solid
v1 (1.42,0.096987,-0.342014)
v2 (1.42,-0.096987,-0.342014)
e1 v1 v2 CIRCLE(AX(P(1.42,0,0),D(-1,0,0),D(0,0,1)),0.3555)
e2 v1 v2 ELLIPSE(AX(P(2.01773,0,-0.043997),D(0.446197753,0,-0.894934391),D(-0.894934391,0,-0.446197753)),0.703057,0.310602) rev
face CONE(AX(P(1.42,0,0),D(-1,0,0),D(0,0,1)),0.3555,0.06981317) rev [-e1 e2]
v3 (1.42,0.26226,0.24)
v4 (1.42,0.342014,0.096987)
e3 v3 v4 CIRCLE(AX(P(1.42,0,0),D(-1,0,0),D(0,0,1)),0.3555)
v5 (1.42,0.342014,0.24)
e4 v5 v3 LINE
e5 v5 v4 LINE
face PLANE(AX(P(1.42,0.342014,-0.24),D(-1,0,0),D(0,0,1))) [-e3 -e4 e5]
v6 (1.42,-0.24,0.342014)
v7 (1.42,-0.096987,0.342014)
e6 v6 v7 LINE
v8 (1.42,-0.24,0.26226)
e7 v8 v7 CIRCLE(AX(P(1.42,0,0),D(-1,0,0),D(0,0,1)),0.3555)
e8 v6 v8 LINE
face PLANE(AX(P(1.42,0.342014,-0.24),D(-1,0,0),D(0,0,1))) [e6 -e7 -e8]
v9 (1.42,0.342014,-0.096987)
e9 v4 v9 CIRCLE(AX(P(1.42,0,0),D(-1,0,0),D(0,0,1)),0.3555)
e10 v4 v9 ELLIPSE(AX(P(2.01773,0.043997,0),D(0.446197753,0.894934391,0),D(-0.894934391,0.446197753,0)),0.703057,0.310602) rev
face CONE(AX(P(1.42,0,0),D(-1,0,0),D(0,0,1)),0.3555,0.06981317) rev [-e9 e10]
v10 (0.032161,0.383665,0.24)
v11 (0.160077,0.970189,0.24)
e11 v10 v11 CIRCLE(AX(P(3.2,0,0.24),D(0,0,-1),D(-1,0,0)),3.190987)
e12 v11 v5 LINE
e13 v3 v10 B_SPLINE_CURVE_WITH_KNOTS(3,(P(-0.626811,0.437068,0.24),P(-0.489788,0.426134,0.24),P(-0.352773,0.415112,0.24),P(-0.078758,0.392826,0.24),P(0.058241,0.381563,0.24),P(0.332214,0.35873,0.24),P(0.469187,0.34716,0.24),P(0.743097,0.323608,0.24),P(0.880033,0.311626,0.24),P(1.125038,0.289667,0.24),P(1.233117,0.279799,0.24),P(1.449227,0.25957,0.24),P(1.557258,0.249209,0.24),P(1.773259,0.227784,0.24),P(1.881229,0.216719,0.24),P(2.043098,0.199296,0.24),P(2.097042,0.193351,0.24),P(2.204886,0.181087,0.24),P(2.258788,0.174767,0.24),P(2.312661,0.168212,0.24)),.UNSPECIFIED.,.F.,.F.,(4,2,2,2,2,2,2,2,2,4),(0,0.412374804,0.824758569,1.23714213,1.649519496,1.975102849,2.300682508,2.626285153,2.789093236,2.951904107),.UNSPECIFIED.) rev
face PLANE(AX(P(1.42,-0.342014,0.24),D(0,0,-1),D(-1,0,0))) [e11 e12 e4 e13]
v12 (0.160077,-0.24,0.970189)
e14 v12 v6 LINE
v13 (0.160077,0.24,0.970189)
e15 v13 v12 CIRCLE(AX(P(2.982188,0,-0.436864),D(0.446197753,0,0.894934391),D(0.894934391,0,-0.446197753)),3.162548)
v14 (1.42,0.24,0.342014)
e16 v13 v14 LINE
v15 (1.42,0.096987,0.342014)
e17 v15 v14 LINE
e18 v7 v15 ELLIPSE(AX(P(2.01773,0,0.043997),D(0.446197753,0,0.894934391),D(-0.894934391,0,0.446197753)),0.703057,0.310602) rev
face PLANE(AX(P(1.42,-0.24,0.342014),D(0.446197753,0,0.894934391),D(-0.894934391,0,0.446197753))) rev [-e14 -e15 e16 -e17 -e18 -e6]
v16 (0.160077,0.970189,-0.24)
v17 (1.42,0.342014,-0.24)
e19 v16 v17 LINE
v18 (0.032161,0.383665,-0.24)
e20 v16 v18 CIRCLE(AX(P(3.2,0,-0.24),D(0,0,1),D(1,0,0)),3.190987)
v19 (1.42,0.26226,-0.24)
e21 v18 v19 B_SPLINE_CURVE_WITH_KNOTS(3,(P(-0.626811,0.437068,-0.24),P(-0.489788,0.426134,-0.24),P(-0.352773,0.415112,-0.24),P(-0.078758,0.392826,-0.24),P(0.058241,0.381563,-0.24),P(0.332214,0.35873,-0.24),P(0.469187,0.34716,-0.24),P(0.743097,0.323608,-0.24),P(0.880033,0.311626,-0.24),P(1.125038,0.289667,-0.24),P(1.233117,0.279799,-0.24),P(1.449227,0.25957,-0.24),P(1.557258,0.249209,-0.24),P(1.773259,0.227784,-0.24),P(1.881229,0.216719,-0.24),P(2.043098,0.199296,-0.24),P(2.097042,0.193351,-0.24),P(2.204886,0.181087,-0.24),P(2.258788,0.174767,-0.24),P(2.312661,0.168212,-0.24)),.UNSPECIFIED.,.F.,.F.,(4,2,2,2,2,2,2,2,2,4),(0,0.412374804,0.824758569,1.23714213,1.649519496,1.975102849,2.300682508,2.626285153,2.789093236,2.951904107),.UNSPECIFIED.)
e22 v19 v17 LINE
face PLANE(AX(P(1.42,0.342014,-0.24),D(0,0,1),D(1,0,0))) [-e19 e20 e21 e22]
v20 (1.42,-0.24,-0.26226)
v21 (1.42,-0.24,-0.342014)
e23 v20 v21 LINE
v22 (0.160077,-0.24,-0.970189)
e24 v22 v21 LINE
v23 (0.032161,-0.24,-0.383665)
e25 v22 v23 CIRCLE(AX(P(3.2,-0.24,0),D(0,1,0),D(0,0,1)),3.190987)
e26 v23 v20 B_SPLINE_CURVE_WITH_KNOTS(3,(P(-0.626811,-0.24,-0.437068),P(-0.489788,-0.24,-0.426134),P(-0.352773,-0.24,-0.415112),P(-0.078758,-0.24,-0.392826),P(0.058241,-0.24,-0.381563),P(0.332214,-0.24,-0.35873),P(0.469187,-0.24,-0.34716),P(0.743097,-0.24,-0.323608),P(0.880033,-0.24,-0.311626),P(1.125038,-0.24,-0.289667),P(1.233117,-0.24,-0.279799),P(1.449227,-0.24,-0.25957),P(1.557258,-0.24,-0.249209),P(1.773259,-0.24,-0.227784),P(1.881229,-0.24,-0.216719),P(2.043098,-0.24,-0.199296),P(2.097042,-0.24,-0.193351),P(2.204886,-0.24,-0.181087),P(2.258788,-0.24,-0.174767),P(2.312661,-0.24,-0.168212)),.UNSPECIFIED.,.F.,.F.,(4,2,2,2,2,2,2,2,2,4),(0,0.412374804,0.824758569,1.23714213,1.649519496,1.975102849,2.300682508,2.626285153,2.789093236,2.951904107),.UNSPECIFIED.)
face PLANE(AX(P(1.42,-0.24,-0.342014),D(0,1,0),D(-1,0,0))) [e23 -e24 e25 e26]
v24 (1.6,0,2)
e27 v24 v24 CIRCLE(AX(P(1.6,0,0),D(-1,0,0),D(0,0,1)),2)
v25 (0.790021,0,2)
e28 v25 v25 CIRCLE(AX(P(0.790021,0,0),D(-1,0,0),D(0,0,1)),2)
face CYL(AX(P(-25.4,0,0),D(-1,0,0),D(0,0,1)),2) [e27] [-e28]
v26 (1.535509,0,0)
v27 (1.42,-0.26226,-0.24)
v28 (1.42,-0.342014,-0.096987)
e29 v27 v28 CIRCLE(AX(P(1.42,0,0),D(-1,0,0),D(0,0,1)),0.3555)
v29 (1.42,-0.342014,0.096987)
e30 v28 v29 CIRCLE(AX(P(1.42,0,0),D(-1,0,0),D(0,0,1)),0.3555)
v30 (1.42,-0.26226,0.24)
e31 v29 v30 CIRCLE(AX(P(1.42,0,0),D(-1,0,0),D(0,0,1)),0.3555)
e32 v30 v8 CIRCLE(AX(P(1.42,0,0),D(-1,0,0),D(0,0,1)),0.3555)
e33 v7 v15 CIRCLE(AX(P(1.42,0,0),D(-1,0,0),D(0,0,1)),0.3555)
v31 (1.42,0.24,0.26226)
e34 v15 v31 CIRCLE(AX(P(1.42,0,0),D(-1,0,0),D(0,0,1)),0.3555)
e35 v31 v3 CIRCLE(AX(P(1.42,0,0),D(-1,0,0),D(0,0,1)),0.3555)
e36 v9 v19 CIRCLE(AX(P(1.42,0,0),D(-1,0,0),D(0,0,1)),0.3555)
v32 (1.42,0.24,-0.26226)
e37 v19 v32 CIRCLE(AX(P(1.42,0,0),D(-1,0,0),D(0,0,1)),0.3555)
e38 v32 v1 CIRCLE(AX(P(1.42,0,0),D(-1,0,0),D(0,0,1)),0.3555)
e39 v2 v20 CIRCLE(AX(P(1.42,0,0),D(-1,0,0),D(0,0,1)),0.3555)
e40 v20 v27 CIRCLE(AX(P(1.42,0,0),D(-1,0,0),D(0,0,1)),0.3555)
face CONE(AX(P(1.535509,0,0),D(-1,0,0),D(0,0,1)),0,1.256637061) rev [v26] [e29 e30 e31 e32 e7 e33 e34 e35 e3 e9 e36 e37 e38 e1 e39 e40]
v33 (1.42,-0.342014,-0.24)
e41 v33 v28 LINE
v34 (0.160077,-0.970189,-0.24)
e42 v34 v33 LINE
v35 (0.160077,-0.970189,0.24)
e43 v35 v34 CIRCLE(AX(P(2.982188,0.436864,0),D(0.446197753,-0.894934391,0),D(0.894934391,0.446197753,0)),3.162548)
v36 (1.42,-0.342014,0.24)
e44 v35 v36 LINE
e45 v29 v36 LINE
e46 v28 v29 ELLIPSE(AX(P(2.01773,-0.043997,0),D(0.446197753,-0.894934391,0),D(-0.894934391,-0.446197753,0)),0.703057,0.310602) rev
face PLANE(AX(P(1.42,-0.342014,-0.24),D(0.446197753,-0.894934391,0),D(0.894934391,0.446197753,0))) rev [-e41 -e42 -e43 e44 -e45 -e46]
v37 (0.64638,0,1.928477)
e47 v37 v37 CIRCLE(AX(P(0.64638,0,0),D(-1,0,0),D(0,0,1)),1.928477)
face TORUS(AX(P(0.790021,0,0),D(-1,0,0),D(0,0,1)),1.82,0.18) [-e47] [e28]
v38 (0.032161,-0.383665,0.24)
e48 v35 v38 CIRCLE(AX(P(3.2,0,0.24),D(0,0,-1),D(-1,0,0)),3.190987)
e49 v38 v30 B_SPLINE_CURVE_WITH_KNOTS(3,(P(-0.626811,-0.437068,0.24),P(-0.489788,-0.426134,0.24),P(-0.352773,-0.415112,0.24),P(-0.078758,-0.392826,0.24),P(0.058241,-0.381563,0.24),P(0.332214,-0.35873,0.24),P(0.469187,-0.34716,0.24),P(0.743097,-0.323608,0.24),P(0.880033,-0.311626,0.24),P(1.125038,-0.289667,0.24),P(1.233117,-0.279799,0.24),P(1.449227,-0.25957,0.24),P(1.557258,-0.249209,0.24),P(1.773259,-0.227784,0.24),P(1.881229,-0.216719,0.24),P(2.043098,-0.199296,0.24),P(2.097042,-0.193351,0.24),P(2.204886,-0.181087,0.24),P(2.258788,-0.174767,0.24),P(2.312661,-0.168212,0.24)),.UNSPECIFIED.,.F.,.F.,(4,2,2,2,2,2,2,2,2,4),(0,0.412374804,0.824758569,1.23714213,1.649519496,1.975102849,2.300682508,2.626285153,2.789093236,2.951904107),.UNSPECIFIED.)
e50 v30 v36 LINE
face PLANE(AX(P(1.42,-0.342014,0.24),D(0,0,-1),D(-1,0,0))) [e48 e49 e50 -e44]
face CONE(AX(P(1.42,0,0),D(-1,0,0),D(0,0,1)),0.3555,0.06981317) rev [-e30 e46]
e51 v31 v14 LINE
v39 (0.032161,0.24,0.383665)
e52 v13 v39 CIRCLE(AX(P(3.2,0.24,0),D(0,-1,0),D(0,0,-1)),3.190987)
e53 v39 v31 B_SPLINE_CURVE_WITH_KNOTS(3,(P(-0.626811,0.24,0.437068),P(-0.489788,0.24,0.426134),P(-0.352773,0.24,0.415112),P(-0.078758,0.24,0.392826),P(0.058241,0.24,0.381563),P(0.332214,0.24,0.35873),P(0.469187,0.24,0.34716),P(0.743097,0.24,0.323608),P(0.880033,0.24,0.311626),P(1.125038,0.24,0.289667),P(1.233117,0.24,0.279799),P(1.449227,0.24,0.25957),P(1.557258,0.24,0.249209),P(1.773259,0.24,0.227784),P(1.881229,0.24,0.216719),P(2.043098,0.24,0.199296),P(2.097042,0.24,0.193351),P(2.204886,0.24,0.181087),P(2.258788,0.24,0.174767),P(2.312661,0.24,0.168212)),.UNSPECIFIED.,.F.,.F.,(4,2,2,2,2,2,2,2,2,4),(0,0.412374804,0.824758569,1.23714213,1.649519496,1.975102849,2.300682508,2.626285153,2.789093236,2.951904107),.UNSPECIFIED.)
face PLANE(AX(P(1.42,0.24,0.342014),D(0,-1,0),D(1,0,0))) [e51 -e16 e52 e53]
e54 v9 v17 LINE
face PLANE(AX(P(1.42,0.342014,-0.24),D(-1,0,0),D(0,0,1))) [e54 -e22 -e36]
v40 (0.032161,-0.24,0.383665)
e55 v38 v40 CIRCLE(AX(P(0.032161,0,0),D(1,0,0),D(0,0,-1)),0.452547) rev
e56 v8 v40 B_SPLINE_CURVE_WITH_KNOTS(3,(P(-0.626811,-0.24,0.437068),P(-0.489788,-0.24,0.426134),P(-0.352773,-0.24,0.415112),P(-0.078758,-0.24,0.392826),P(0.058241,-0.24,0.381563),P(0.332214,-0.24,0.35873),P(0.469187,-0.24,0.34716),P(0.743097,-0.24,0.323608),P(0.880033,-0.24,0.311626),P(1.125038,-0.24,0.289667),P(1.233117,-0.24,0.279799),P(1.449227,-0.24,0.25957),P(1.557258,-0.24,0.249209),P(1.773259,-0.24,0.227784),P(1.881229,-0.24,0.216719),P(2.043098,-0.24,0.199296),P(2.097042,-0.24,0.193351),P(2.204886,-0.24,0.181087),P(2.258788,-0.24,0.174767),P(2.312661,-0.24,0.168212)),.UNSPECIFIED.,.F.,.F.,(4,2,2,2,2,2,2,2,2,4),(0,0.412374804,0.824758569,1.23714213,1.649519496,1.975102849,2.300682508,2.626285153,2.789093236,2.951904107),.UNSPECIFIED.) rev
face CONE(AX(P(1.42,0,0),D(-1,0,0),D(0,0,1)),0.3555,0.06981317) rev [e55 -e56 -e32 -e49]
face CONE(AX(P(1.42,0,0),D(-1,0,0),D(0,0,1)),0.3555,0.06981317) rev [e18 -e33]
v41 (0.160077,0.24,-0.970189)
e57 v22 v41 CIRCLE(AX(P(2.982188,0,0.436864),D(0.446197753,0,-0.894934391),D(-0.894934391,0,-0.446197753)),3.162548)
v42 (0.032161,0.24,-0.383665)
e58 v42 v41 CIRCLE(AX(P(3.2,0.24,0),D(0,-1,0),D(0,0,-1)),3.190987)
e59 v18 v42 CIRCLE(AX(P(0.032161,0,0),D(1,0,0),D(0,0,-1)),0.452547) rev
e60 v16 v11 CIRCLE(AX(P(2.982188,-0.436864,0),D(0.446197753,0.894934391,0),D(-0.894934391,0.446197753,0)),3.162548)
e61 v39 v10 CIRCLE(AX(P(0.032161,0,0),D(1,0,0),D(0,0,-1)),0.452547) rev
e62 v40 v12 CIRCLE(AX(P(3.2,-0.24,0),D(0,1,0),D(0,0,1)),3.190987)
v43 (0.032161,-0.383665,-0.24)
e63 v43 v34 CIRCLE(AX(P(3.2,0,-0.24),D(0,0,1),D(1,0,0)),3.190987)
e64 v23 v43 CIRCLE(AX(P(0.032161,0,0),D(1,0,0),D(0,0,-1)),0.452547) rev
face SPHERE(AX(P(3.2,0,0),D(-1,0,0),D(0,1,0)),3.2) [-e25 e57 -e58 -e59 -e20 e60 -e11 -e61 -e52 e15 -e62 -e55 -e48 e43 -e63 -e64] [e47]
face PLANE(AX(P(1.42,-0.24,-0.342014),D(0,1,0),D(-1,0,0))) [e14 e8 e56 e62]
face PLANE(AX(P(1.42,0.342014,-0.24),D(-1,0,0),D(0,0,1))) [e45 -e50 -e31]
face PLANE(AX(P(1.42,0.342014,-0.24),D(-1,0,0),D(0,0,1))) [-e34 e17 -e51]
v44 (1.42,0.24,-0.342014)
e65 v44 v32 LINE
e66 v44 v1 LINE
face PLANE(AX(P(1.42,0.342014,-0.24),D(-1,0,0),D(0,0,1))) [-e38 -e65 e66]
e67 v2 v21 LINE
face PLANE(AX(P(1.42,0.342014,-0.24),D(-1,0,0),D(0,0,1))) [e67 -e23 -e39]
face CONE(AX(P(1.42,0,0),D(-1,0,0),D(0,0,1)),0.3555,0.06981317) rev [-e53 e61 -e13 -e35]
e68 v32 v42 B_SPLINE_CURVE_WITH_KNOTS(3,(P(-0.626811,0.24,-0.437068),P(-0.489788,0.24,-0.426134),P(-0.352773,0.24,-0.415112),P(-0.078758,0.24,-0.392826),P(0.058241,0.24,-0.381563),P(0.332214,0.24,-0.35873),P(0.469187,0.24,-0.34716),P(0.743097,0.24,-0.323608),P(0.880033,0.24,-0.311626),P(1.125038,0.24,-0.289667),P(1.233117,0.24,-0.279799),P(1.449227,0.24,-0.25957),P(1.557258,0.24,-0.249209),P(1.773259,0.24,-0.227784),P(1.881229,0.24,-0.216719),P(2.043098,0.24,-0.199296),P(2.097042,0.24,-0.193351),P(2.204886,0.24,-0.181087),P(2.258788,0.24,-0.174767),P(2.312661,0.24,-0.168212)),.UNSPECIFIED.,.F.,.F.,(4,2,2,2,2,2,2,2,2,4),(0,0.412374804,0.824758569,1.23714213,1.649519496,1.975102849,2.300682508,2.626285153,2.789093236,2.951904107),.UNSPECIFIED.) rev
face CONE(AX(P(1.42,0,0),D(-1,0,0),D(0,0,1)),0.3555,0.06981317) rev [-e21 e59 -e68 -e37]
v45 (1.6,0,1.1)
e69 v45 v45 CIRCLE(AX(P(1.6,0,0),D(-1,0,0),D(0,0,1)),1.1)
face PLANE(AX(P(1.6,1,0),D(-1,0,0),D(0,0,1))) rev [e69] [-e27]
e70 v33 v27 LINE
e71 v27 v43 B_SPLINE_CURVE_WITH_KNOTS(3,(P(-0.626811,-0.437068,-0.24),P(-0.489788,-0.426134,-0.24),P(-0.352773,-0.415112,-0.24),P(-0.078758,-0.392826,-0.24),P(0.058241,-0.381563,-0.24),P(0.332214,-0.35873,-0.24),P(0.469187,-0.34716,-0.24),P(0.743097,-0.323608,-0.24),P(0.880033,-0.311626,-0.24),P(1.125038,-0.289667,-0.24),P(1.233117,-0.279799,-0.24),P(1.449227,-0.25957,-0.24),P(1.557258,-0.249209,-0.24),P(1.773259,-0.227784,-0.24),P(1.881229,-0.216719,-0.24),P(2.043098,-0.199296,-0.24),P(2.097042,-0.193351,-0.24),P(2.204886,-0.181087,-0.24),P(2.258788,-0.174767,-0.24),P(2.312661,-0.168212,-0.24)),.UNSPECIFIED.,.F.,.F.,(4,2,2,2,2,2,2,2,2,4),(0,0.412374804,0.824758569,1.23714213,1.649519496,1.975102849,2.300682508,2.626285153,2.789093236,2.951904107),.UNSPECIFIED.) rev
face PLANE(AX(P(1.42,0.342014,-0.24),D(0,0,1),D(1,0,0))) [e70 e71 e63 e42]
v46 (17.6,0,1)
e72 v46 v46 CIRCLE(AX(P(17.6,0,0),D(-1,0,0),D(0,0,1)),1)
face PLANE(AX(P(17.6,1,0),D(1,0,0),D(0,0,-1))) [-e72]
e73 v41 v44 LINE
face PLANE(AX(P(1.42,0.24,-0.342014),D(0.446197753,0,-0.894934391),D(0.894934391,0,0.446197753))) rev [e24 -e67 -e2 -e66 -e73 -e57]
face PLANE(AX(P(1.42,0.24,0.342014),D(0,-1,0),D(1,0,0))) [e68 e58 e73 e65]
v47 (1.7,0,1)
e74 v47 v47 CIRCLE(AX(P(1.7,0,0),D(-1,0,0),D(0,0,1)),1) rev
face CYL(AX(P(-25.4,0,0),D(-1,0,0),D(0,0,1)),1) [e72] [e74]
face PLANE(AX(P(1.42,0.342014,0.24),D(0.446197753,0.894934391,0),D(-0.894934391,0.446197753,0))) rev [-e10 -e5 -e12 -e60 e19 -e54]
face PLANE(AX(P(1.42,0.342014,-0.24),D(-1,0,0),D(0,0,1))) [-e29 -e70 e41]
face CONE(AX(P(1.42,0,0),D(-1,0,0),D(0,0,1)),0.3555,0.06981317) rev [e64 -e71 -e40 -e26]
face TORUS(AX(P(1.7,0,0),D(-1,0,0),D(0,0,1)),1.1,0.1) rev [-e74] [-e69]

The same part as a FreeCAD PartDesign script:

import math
import FreeCAD as App
import Part
import Sketcher
from FreeCAD import Vector
Q = App.Units.Quantity


def edges_at(feature, points):
    """Names of the edges that pass closest to the given points."""
    edges = feature.Shape.Edges
    near = lambda p: min(range(len(edges)), key=lambda i: edges[i].distToShape(Part.Vertex(*p))[0])
    return sorted({f"Edge{near(p) + 1}" for p in points})

doc = App.newDocument("Part")
params = doc.addObject("Spreadsheet::Sheet", "Params")
for row, (alias, value) in enumerate([
    ("sketch1_radius", "3.2 mm"),
    ("sketch1_width", "16 mm"),
    ("sketch1_height", "1 mm"),
    ("sketch1_radius2", "0.18 mm"),
    ("sketch1_width2", "17.6 mm"),
    ("revolution_angle", "360 deg"),
    ("fillet_radius", "0.1 mm"),
    ("sketch2_width", "2.1 mm"),
    ("sketch2_height", "0.48 mm"),
    ("sketch3_height", "0.48 mm"),
    ("groove_angle", "360 deg"),
], start=1):
    params.set(f"A{row}", alias)
    params.set(f"B{row}", "=" + value)
    params.setAlias(f"B{row}", alias)

body = doc.addObject("PartDesign::Body", "Body")

# Sketch on XY plane
sketch1 = doc.addObject("Sketcher::SketchObject", "Sketch")
body.addObject(sketch1)
sketch1.AttachmentSupport = (doc.XY_Plane, [""])
sketch1.MapMode = "FlatFace"
sketch1.addGeometry([
    Part.LineSegment(Vector(1.6, 1, 0), Vector(1.6, 2, 0)),  # 0
    Part.LineSegment(Vector(1.6, 2, 0), Vector(0.79, 2, 0)),  # 1
    Part.ArcOfCircle(Part.Circle(Vector(0.79, 1.82, 0), Vector(0, 0, 1), 0.18), math.radians(90), math.radians(143)),  # 2
    Part.ArcOfCircle(Part.Circle(Vector(3.2, 0, 0), Vector(0, 0, 1), 3.2), math.radians(143), math.radians(180)),  # 3
    Part.LineSegment(Vector(0, 0, 0), Vector(17.6, 0, 0)),  # 4
    Part.LineSegment(Vector(17.6, 0, 0), Vector(17.6, 1, 0)),  # 5
    Part.LineSegment(Vector(17.6, 1, 0), Vector(1.6, 1, 0)),  # 6
], False)
sketch1.addConstraint([
    Sketcher.Constraint("Coincident", 0, 2, 1, 1),
    Sketcher.Constraint("Tangent", 1, 2, 2, 1),
    Sketcher.Constraint("Tangent", 2, 2, 3, 1),
    Sketcher.Constraint("Coincident", 3, 2, 4, 1),
    Sketcher.Constraint("Coincident", 4, 2, 5, 1),
    Sketcher.Constraint("Coincident", 5, 2, 6, 1),
    Sketcher.Constraint("Coincident", 6, 2, 0, 1),
    Sketcher.Constraint("Vertical", 0),
    Sketcher.Constraint("Horizontal", 1),
    Sketcher.Constraint("Horizontal", 4),
    Sketcher.Constraint("Vertical", 5),
    Sketcher.Constraint("Horizontal", 6),
    Sketcher.Constraint("Coincident", 3, 2, -1, 1),
    Sketcher.Constraint("PointOnObject", 3, 3, -1),
    Sketcher.Constraint("Equal", 0, 5),
    Sketcher.Constraint("Radius", 3, 3.2),
    Sketcher.Constraint("DistanceX", 6, 2, 6, 1, 16.0),
    Sketcher.Constraint("DistanceY", 0, 1, 0, 2, 1.0),
    Sketcher.Constraint("Radius", 2, 0.18),
    Sketcher.Constraint("DistanceX", 4, 1, 4, 2, 17.6),
])
sketch1.setExpression("Constraints[15]", "Params.sketch1_radius")
sketch1.setExpression("Constraints[16]", "Params.sketch1_width")
sketch1.setExpression("Constraints[17]", "Params.sketch1_height")
sketch1.setExpression("Constraints[18]", "Params.sketch1_radius2")
sketch1.setExpression("Constraints[19]", "Params.sketch1_width2")
revolution = doc.addObject("PartDesign::Revolution", "Revolution")
body.addObject(revolution)
revolution.Profile = sketch1
revolution.ReferenceAxis = (sketch1, ["H_Axis"])
revolution.setExpression("Angle", "Params.revolution_angle")
doc.recompute()

fillet = doc.addObject("PartDesign::Fillet", "Fillet")
body.addObject(fillet)
fillet.Base = (revolution, edges_at(revolution, [(1.6, 0, -1)]))
fillet.setExpression("Radius", "Params.fillet_radius")

# Sketch on YZ plane
sketch2 = doc.addObject("Sketcher::SketchObject", "Sketch001")
body.addObject(sketch2)
sketch2.AttachmentSupport = (doc.YZ_Plane, [""])
sketch2.MapMode = "FlatFace"
sketch2.addGeometry([
    Part.LineSegment(Vector(-1.05, 0.24, 0), Vector(-1.05, -0.24, 0)),
    Part.LineSegment(Vector(-1.05, -0.24, 0), Vector(1.05, -0.24, 0)),
    Part.LineSegment(Vector(1.05, -0.24, 0), Vector(1.05, 0.24, 0)),
    Part.LineSegment(Vector(1.05, 0.24, 0), Vector(-1.05, 0.24, 0)),
], False)
sketch2.addConstraint([
    Sketcher.Constraint("Coincident", 0, 2, 1, 1),
    Sketcher.Constraint("Coincident", 1, 2, 2, 1),
    Sketcher.Constraint("Coincident", 2, 2, 3, 1),
    Sketcher.Constraint("Coincident", 3, 2, 0, 1),
    Sketcher.Constraint("Vertical", 0),
    Sketcher.Constraint("Horizontal", 1),
    Sketcher.Constraint("Vertical", 2),
    Sketcher.Constraint("Horizontal", 3),
    Sketcher.Constraint("Symmetric", 0, 2, 2, 2, -1, 1),
    Sketcher.Constraint("DistanceX", 1, 1, 1, 2, 2.1),
    Sketcher.Constraint("DistanceY", 0, 2, 0, 1, 0.48),
])
sketch2.setExpression("Constraints[9]", "Params.sketch2_width")
sketch2.setExpression("Constraints[10]", "Params.sketch2_height")

# Sketch on YZ plane
sketch3 = doc.addObject("Sketcher::SketchObject", "Sketch002")
body.addObject(sketch3)
sketch3.AttachmentSupport = (doc.YZ_Plane, [""])
sketch3.MapMode = "FlatFace"
sketch3.AttachmentOffset = App.Placement(Vector(0, 0, 1.42), App.Rotation())
sketch3.addGeometry([
    Part.LineSegment(Vector(-0.34, 0.24, 0), Vector(-0.34, -0.24, 0)),
    Part.LineSegment(Vector(-0.34, -0.24, 0), Vector(0.34, -0.24, 0)),
    Part.LineSegment(Vector(0.34, -0.24, 0), Vector(0.34, 0.24, 0)),
    Part.LineSegment(Vector(0.34, 0.24, 0), Vector(-0.34, 0.24, 0)),
], False)
sketch3.addConstraint([
    Sketcher.Constraint("Coincident", 0, 2, 1, 1),
    Sketcher.Constraint("Coincident", 1, 2, 2, 1),
    Sketcher.Constraint("Coincident", 2, 2, 3, 1),
    Sketcher.Constraint("Coincident", 3, 2, 0, 1),
    Sketcher.Constraint("Vertical", 0),
    Sketcher.Constraint("Horizontal", 1),
    Sketcher.Constraint("Vertical", 2),
    Sketcher.Constraint("Horizontal", 3),
    Sketcher.Constraint("Symmetric", 0, 2, 2, 2, -1, 1),
    Sketcher.Constraint("DistanceY", 0, 2, 0, 1, 0.48),
    Sketcher.Constraint("DistanceX", 1, 1, 1, 2, 0.684028),
])
sketch3.setExpression("Constraints[9]", "Params.sketch3_height")

subtractiveloft = doc.addObject("PartDesign::SubtractiveLoft", "SubtractiveLoft")
body.addObject(subtractiveloft)
subtractiveloft.Profile = sketch2
subtractiveloft.Sections = [sketch3]
doc.recompute()

polarpattern = doc.addObject("PartDesign::PolarPattern", "PolarPattern")
body.addObject(polarpattern)
polarpattern.Originals = [subtractiveloft]
polarpattern.Axis = (doc.X_Axis, [""])
polarpattern.Angle = 90
polarpattern.Occurrences = 2
body.Tip = polarpattern

# Sketch on XY plane
sketch4 = doc.addObject("Sketcher::SketchObject", "Sketch003")
body.addObject(sketch4)
sketch4.AttachmentSupport = (doc.XY_Plane, [""])
sketch4.MapMode = "FlatFace"
sketch4.addGeometry([
    Part.LineSegment(Vector(0, 0.45, 0), Vector(0, 0, 0)),
    Part.LineSegment(Vector(0, 0, 0), Vector(1.54, 0, 0)),
    Part.LineSegment(Vector(1.54, 0, 0), Vector(1.42, 0.36, 0)),
    Part.LineSegment(Vector(1.42, 0.36, 0), Vector(0, 0.45, 0)),
], False)
sketch4.addConstraint([
    Sketcher.Constraint("Coincident", 0, 2, 1, 1),
    Sketcher.Constraint("Coincident", 1, 2, 2, 1),
    Sketcher.Constraint("Coincident", 2, 2, 3, 1),
    Sketcher.Constraint("Coincident", 3, 2, 0, 1),
    Sketcher.Constraint("Vertical", 0),
    Sketcher.Constraint("Horizontal", 1),
    Sketcher.Constraint("Coincident", 0, 2, -1, 1),
    Sketcher.Constraint("Angle", 2, Q("108 deg")),
    Sketcher.Constraint("Angle", 3, Q("176 deg")),
    Sketcher.Constraint("DistanceX", -1, 1, 2, 2, 1.42),
    Sketcher.Constraint("DistanceX", 1, 1, 1, 2, 1.535509),
])
groove = doc.addObject("PartDesign::Groove", "Groove")
body.addObject(groove)
groove.Profile = sketch4
groove.ReferenceAxis = (sketch4, ["H_Axis"])
groove.setExpression("Angle", "Params.groove_angle")

doc.recompute()
